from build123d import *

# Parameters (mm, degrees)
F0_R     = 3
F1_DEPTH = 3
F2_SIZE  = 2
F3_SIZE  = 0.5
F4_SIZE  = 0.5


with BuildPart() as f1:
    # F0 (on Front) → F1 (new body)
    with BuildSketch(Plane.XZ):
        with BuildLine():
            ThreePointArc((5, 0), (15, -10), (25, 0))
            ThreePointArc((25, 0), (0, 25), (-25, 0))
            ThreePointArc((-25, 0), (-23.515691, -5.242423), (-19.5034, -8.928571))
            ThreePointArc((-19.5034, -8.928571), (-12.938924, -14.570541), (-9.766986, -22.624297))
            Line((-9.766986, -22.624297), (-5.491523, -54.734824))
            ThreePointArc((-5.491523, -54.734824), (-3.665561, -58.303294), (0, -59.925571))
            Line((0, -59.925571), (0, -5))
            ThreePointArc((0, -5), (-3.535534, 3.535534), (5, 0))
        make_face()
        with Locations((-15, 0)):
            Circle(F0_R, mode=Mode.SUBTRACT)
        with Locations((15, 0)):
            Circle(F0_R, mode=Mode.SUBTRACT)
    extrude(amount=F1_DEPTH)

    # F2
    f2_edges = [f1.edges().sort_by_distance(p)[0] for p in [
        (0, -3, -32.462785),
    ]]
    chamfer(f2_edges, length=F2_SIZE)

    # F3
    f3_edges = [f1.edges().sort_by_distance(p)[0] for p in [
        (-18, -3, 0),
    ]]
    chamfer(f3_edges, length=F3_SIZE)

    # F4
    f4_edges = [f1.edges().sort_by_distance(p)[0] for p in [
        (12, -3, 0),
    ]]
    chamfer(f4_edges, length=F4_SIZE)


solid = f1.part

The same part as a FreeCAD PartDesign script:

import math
import FreeCAD as App
import Part
import Sketcher

V = App.Vector
Q = App.Units.Quantity


def edges_at(feature, points):
    """Names of the edges that pass closest to the given points."""
    edges = feature.Shape.Edges
    near = lambda p: min(range(len(edges)), key=lambda i: edges[i].distToShape(Part.Vertex(*p))[0])
    return sorted({f"Edge{near(p) + 1}" for p in points})

doc = App.newDocument("Part")
params = doc.addObject("Spreadsheet::Sheet", "Params")
for row, (alias, value) in enumerate([
    ("sketch1_diameter", "6 mm"),
    ("sketch1_radius", "10 mm"),
    ("sketch1_radius2", "25 mm"),
    ("sketch1_radius3", "17.999999 mm"),
    ("sketch1_radius4", "5.999999 mm"),
    ("pad1_length", "3 mm"),
    ("chamfer_size", "2 mm"),
    ("chamfer2_size", "0.5 mm"),
    ("chamfer3_size", "0.5 mm"),
], start=1):
    params.set(f"A{row}", alias)
    params.set(f"B{row}", "=" + value)
    params.setAlias(f"B{row}", alias)

body = doc.addObject("PartDesign::Body", "Body")

# Sketch on XZ plane
sketch1 = body.newObject("Sketcher::SketchObject", "Sketch")
sketch1.AttachmentSupport = (doc.getObject("XZ_Plane"), [""])
sketch1.MapMode = "FlatFace"
sketch1.addGeometry([
    Part.ArcOfCircle(Part.Circle(V(15, 0, 0), V(0, 0, 1), 10), math.radians(180), math.radians(360)),  # 0
    Part.ArcOfCircle(Part.Circle(V(0, 0, 0), V(0, 0, 1), 25), math.radians(0), math.radians(180)),  # 1
    Part.ArcOfCircle(Part.Circle(V(-15, 0, 0), V(0, 0, 1), 10), math.radians(-180), math.radians(-117)),  # 2
    Part.ArcOfCircle(Part.Circle(V(-27.6, -25, 0), V(0, 0, 1), 18), math.radians(8), math.radians(63)),  # 3
    Part.LineSegment(V(-9.8, -22.6, 0), V(-5.5, -54.7, 0)),  # 4
    Part.ArcOfCircle(Part.Circle(V(0.5, -53.9, 0), V(0, 0, 1), 6), math.radians(-172), math.radians(-94)),  # 5
    Part.LineSegment(V(0, -59.9, 0), V(0, -5, 0)),  # 6
    Part.ArcOfCircle(Part.Circle(V(0, 0, 0), V(0, 0, 1), 5), math.radians(0), math.radians(270)),  # 7
    Part.Circle(V(-15, 0, 0), V(0, 0, 1), 3),  # 8
    Part.Circle(V(15, 0, 0), V(0, 0, 1), 3),  # 9
], False)
sketch1.addConstraint([
    Sketcher.Constraint("Tangent", 0, 2, 1, 1),
    Sketcher.Constraint("Tangent", 1, 2, 2, 1),
    Sketcher.Constraint("Tangent", 2, 2, 3, 2),
    Sketcher.Constraint("Tangent", 3, 1, 4, 1),
    Sketcher.Constraint("Tangent", 4, 2, 5, 1),
    Sketcher.Constraint("Coincident", 5, 2, 6, 1),
    Sketcher.Constraint("Coincident", 6, 2, 7, 2),
    Sketcher.Constraint("Tangent", 7, 1, 0, 1),
    Sketcher.Constraint("Vertical", 6),
    Sketcher.Constraint("Coincident", 1, 3, -1, 1),
    Sketcher.Constraint("Coincident", 7, 3, -1, 1),
    Sketcher.Constraint("Coincident", 8, 3, 2, 3),
    Sketcher.Constraint("Coincident", 9, 3, 0, 3),
    Sketcher.Constraint("Equal", 0, 2),
    Sketcher.Constraint("Equal", 8, 9),
    Sketcher.Constraint("PointOnObject", 0, 3, -1),
    Sketcher.Constraint("PointOnObject", 2, 3, -1),
    Sketcher.Constraint("PointOnObject", 5, 2, -2),
    Sketcher.Constraint("Diameter", 8, Q("6 mm")),
    Sketcher.Constraint("Radius", 0, Q("10 mm")),
    Sketcher.Constraint("Radius", 1, Q("25 mm")),
    Sketcher.Constraint("Radius", 3, Q("17.999999 mm")),
    Sketcher.Constraint("Radius", 5, Q("5.999999 mm")),
    Sketcher.Constraint("DistanceY", 3, 3, -1, 1, Q("24.999999 mm")),
    Sketcher.Constraint("DistanceY", 5, 2, 2, 2, Q("50.997 mm")),
    Sketcher.Constraint("DistanceY", 3, 3, 3, 1, Q("2.375702 mm")),
])
sketch1.setExpression("Constraints[18]", "Params.sketch1_diameter")
sketch1.setExpression("Constraints[19]", "Params.sketch1_radius")
sketch1.setExpression("Constraints[20]", "Params.sketch1_radius2")
sketch1.setExpression("Constraints[21]", "Params.sketch1_radius3")
sketch1.setExpression("Constraints[22]", "Params.sketch1_radius4")
pad1 = body.newObject("PartDesign::Pad", "Pad")
pad1.Profile = sketch1
pad1.setExpression("Length", "Params.pad1_length")
doc.recompute()

chamfer = body.newObject("PartDesign::Chamfer", "Chamfer")
chamfer.Base = (pad1, edges_at(pad1, [(0, -3, -32.463)]))
chamfer.setExpression("Size", "Params.chamfer_size")
doc.recompute()

chamfer2 = body.newObject("PartDesign::Chamfer", "Chamfer001")
chamfer2.Base = (chamfer, edges_at(chamfer, [(-18, -3, 0)]))
chamfer2.setExpression("Size", "Params.chamfer2_size")
doc.recompute()

chamfer3 = body.newObject("PartDesign::Chamfer", "Chamfer002")
chamfer3.Base = (chamfer2, edges_at(chamfer2, [(12, -3, 0)]))
chamfer3.setExpression("Size", "Params.chamfer3_size")

doc.recompute()
